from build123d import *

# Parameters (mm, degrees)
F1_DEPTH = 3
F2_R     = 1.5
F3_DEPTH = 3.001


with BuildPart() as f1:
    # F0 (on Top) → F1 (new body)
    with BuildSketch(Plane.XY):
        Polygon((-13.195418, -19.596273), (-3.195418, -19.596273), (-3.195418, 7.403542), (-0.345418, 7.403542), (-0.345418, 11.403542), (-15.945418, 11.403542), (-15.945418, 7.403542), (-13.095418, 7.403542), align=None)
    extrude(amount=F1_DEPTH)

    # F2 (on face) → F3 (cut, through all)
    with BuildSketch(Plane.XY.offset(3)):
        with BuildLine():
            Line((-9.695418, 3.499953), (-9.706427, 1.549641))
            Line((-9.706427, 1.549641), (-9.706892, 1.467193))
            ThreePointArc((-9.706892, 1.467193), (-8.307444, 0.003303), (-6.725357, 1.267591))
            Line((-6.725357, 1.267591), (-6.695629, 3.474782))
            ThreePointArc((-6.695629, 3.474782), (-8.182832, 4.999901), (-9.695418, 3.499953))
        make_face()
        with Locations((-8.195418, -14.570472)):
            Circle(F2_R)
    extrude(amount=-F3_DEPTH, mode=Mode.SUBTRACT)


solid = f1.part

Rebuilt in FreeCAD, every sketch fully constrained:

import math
import FreeCAD as App
import Part
import Sketcher


def add_polygon(sketch, points):
    """Adds a closed chain of lines whose ends are joined by coincident constraints."""
    first, n = sketch.GeometryCount, len(points)
    for a, b in zip(points, points[1:] + points[:1]):
        sketch.addGeometry(Part.LineSegment(App.Vector(*a, 0), App.Vector(*b, 0)), False)
    for i in range(n):
        sketch.addConstraint(Sketcher.Constraint("Coincident", first + i, 2, first + (i + 1) % n, 1))

doc = App.newDocument("Part")
body = doc.addObject("PartDesign::Body", "Body")

sketch1 = body.newObject("Sketcher::SketchObject", "Sketch")
sketch1.AttachmentSupport = (doc.getObject("XY_Plane"), [""])
sketch1.MapMode = "FlatFace"
add_polygon(sketch1, [(-13.2, -19.6), (-3.2, -19.6), (-3.2, 7.4), (-0.3, 7.4), (-0.3, 11.4), (-15.9, 11.4), (-15.9, 7.4), (-13.1, 7.4)])
sketch1.addConstraint(Sketcher.Constraint("Horizontal", 0))
sketch1.addConstraint(Sketcher.Constraint("Vertical", 1))
sketch1.addConstraint(Sketcher.Constraint("Horizontal", 2))
sketch1.addConstraint(Sketcher.Constraint("Vertical", 3))
sketch1.addConstraint(Sketcher.Constraint("Horizontal", 4))
sketch1.addConstraint(Sketcher.Constraint("Vertical", 5))
sketch1.addConstraint(Sketcher.Constraint("Horizontal", 6))
sketch1.addConstraint(Sketcher.Constraint("Horizontal", 2, 2, 5, 2))
sketch1.addConstraint(Sketcher.Constraint("Equal", 2, 6))
sketch1.addConstraint(Sketcher.Constraint("DistanceX", 0, 1, 0, 2, 10.0))
sketch1.addConstraint(Sketcher.Constraint("DistanceY", 3, 1, 3, 2, 4.0))
sketch1.addConstraint(Sketcher.Constraint("Distance", 7, 27.0))
sketch1.addConstraint(Sketcher.Constraint("DistanceX", 4, 2, 4, 1, 15.6))
sketch1.addConstraint(Sketcher.Constraint("DistanceX", 2, 1, 2, 2, 2.85))
sketch1.addConstraint(Sketcher.Constraint("DistanceX", 0, 2, -1, 1, 3.195418))
sketch1.addConstraint(Sketcher.Constraint("DistanceY", 0, 2, -1, 1, 19.596273))
pad1 = body.newObject("PartDesign::Pad", "Pad")
pad1.Profile = sketch1
pad1.Length = 3

sketch2 = body.newObject("Sketcher::SketchObject", "Sketch001")
sketch2.AttachmentSupport = (doc.getObject("XY_Plane"), [""])
sketch2.MapMode = "FlatFace"
sketch2.AttachmentOffset = App.Placement(App.Vector(0, 0, 3), App.Rotation())
sketch2.addGeometry(Part.LineSegment(App.Vector(-9.7, 3.5, 0), App.Vector(-9.71, 1.55, 0)), False)
sketch2.addGeometry(Part.LineSegment(App.Vector(-9.71, 1.55, 0), App.Vector(-9.71, 1.47, 0)), False)
sketch2.addGeometry(Part.ArcOfCircle(Part.Circle(App.Vector(-8.21, 1.5, 0), App.Vector(0, 0, 1), 1.5), math.radians(-179), math.radians(-9)), False)
sketch2.addGeometry(Part.LineSegment(App.Vector(-6.73, 1.27, 0), App.Vector(-6.7, 3.47, 0)), False)
sketch2.addGeometry(Part.ArcOfCircle(Part.Circle(App.Vector(-8.2, 3.5, 0), App.Vector(0, 0, 1), 1.5), math.radians(-1), math.radians(180)), False)
sketch2.addGeometry(Part.Circle(App.Vector(-8.2, -14.57, 0), App.Vector(0, 0, 1), 1.5), False)
sketch2.addConstraint(Sketcher.Constraint("Coincident", 0, 2, 1, 1))
sketch2.addConstraint(Sketcher.Constraint("Coincident", 1, 2, 2, 1))
sketch2.addConstraint(Sketcher.Constraint("Coincident", 2, 2, 3, 1))
sketch2.addConstraint(Sketcher.Constraint("Coincident", 3, 2, 4, 1))
sketch2.addConstraint(Sketcher.Constraint("Coincident", 4, 2, 0, 1))
sketch2.addConstraint(Sketcher.Constraint("Equal", 2, 4))
sketch2.addConstraint(Sketcher.Constraint("Equal", 4, 5))
sketch2.addConstraint(Sketcher.Constraint("Vertical", 4, 3, 5, 3))
sketch2.addConstraint(Sketcher.Constraint("Diameter", 5, 3.0))
sketch2.addConstraint(Sketcher.Constraint("DistanceY", 2, 3, 4, 3, 2.000001))
sketch2.addConstraint(Sketcher.Constraint("DistanceY", 2, 3, 4, 2, 2.0))
sketch2.addConstraint(Sketcher.Constraint("Distance", 1, 0.082449))
sketch2.addConstraint(Sketcher.Constraint("Distance", 3, 2.207391))
sketch2.addConstraint(Sketcher.Constraint("DistanceX", 2, 3, -1, 1, 8.20725))
sketch2.addConstraint(Sketcher.Constraint("DistanceY", -1, 1, 0, 2, 1.549641))
sketch2.addConstraint(Sketcher.Constraint("DistanceY", -1, 1, 2, 2, 1.267591))
sketch2.addConstraint(Sketcher.Constraint("DistanceX", 3, 2, -1, 1, 6.695629))
sketch2.addConstraint(Sketcher.Constraint("DistanceY", 2, 3, 0, 2, 0.049688))
sketch2.addConstraint(Sketcher.Constraint("DistanceX", 0, 2, 4, 3, 1.511009))
sketch2.addConstraint(Sketcher.Constraint("DistanceY", 5, 3, -1, 1, 14.570472))
pocket1 = body.newObject("PartDesign::Pocket", "Pocket")
pocket1.Profile = sketch2
pocket1.Type = "ThroughAll"

doc.recompute()
